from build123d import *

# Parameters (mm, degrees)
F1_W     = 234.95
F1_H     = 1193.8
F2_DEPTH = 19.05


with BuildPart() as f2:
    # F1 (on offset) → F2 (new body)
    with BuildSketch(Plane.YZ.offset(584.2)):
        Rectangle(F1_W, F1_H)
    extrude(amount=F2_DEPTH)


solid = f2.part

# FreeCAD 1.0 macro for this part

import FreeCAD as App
import Part
import Sketcher
from FreeCAD import Vector
Q = App.Units.Quantity


def add_polygon(sketch, points):
    """Adds a closed chain of lines whose ends are joined by coincident constraints."""
    first, n = sketch.GeometryCount, len(points)
    for a, b in zip(points, points[1:] + points[:1]):
        sketch.addGeometry(Part.LineSegment(App.Vector(*a, 0), App.Vector(*b, 0)), False)
    for i in range(n):
        sketch.addConstraint(Sketcher.Constraint("Coincident", first + i, 2, first + (i + 1) % n, 1))

doc = App.newDocument("Part")
body = doc.addObject("PartDesign::Body", "Body")

# Sketch on YZ plane
sketch1 = doc.addObject("Sketcher::SketchObject", "Sketch")
body.addObject(sketch1)
sketch1.AttachmentSupport = (doc.YZ_Plane, [""])
sketch1.MapMode = "FlatFace"
sketch1.AttachmentOffset = App.Placement(Vector(0, 0, 23 * 25.4), App.Rotation())
add_polygon(sketch1, [(-117, 597), (-117, -597), (117, -597), (117, 597)])  # lines 0-3
sketch1.addConstraint([
    Sketcher.Constraint("Vertical", 0),
    Sketcher.Constraint("Horizontal", 1),
    Sketcher.Constraint("Vertical", 2),
    Sketcher.Constraint("Horizontal", 3),
    Sketcher.Constraint("Symmetric", 0, 2, 2, 2, -1, 1),
    Sketcher.Constraint("DistanceY", 0, 2, 0, 1, Q("47 in")),
    Sketcher.Constraint("DistanceX", 1, 1, 1, 2, Q("9.25 in")),
])
pad1 = doc.addObject("PartDesign::Pad", "Pad")
body.addObject(pad1)
pad1.Profile = sketch1
pad1.Length = Q("0.75 in")

doc.recompute()
